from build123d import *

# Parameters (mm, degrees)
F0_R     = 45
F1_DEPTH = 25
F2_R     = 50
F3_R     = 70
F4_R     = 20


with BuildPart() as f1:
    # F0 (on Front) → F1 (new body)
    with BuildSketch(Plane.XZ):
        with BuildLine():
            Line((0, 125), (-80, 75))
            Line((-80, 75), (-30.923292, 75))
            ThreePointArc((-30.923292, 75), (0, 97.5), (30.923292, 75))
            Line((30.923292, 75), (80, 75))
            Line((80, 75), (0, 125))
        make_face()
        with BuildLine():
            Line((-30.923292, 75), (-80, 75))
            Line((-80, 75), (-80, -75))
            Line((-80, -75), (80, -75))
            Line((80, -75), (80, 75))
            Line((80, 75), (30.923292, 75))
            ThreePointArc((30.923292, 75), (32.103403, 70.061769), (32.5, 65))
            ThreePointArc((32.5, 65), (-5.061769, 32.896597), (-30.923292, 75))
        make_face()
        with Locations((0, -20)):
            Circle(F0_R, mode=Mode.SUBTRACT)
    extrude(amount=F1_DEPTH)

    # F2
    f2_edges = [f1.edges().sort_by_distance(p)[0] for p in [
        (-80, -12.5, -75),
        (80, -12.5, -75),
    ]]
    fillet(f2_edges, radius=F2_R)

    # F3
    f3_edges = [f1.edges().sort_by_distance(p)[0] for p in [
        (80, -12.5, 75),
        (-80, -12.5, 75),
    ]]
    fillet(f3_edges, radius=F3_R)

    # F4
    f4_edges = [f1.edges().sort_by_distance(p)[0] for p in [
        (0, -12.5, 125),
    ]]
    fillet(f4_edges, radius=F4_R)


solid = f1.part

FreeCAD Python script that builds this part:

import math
import FreeCAD as App
import Part
import Sketcher
from FreeCAD import Vector


def edges_at(feature, points):
    """Names of the edges that pass closest to the given points."""
    edges = feature.Shape.Edges
    near = lambda p: min(range(len(edges)), key=lambda i: edges[i].distToShape(Part.Vertex(*p))[0])
    return sorted({f"Edge{near(p) + 1}" for p in points})

doc = App.newDocument("Part")
params = doc.addObject("Spreadsheet::Sheet", "Params")
for row, (alias, value) in enumerate([
    ("sketch1_diameter", "90 mm"),
    ("sketch1_radius", "32.5 mm"),
    ("sketch1_width", "160 mm"),
    ("sketch1_height", "150 mm"),
    ("pad1_length", "25 mm"),
    ("fillet_radius", "50 mm"),
    ("fillet2_radius", "70 mm"),
    ("fillet3_radius", "20 mm"),
], start=1):
    params.set(f"A{row}", alias)
    params.set(f"B{row}", "=" + value)
    params.setAlias(f"B{row}", alias)

body = doc.addObject("PartDesign::Body", "Body")

sketch1 = body.newObject("Sketcher::SketchObject", "Sketch")
sketch1.AttachmentSupport = (doc.getObject("XZ_Plane"), [""])
sketch1.MapMode = "FlatFace"
sketch1.addGeometry([
    Part.LineSegment(Vector(0, 125, 0), Vector(-80, 75, 0)),
    Part.LineSegment(Vector(-80, 75, 0), Vector(-80, -75, 0)),
    Part.LineSegment(Vector(-80, -75, 0), Vector(80, -75, 0)),
    Part.LineSegment(Vector(80, -75, 0), Vector(80, 75, 0)),
    Part.LineSegment(Vector(80, 75, 0), Vector(0, 125, 0)),
    Part.Circle(Vector(0, -20, 0), Vector(0, 0, 1), 45),
    Part.ArcOfCircle(Part.Circle(Vector(0, 65, 0), Vector(0, 0, 1), 32), math.radians(18), math.radians(162)),
    Part.ArcOfCircle(Part.Circle(Vector(0, 65, 0), Vector(0, 0, 1), 33), math.radians(0), math.radians(17.92)),
    Part.ArcOfCircle(Part.Circle(Vector(0, 65, 0), Vector(0, 0, 1), 32), math.radians(162), math.radians(360)),
], False)
sketch1.addConstraint([
    Sketcher.Constraint("Coincident", 0, 2, 1, 1),
    Sketcher.Constraint("Coincident", 1, 2, 2, 1),
    Sketcher.Constraint("Coincident", 2, 2, 3, 1),
    Sketcher.Constraint("Coincident", 3, 2, 4, 1),
    Sketcher.Constraint("Coincident", 4, 2, 0, 1),
    Sketcher.Constraint("Tangent", 6, 1, 7, 2),
    Sketcher.Constraint("Tangent", 7, 1, 8, 2),
    Sketcher.Constraint("Tangent", 8, 1, 6, 2),
    Sketcher.Constraint("Vertical", 1),
    Sketcher.Constraint("Horizontal", 2),
    Sketcher.Constraint("Vertical", 3),
    Sketcher.Constraint("Symmetric", 0, 2, 2, 2, -1, 1),
    Sketcher.Constraint("Symmetric", 6, 1, 8, 1, -2),
    Sketcher.Constraint("PointOnObject", 5, 3, -2),
    Sketcher.Constraint("PointOnObject", 4, 2, -2),
    Sketcher.Constraint("Horizontal", 0, 2, 3, 2),
    Sketcher.Constraint("Horizontal", 3, 2, 6, 1),
    Sketcher.Constraint("Horizontal", 8, 3, 7, 1),
    Sketcher.Constraint("Diameter", 5, 90.0),
    Sketcher.Constraint("Radius", 6, 32.5),
    Sketcher.Constraint("DistanceX", 2, 1, 2, 2, 160.0),
    Sketcher.Constraint("DistanceY", 1, 2, 1, 1, 150.0),
    Sketcher.Constraint("DistanceY", 5, 3, -1, 1, 20.0),
    Sketcher.Constraint("DistanceY", -1, 1, 6, 3, 65.0),
    Sketcher.Constraint("DistanceY", -1, 1, 4, 2, 125.0),
])
sketch1.setExpression("Constraints[18]", "Params.sketch1_diameter")
sketch1.setExpression("Constraints[19]", "Params.sketch1_radius")
sketch1.setExpression("Constraints[20]", "Params.sketch1_width")
sketch1.setExpression("Constraints[21]", "Params.sketch1_height")
pad1 = body.newObject("PartDesign::Pad", "Pad")
pad1.Profile = sketch1
pad1.setExpression("Length", "Params.pad1_length")
doc.recompute()

fillet = body.newObject("PartDesign::Fillet", "Fillet")
fillet.Base = (pad1, edges_at(pad1, [(-80, -12.5, -75), (80, -12.5, -75)]))
fillet.setExpression("Radius", "Params.fillet_radius")
doc.recompute()

fillet2 = body.newObject("PartDesign::Fillet", "Fillet001")
fillet2.Base = (fillet, edges_at(fillet, [(80, -12.5, 75), (-80, -12.5, 75)]))
fillet2.setExpression("Radius", "Params.fillet2_radius")
doc.recompute()

fillet3 = body.newObject("PartDesign::Fillet", "Fillet002")
fillet3.Base = (fillet2, edges_at(fillet2, [(0, -12.5, 125)]))
fillet3.setExpression("Radius", "Params.fillet3_radius")

doc.recompute()
